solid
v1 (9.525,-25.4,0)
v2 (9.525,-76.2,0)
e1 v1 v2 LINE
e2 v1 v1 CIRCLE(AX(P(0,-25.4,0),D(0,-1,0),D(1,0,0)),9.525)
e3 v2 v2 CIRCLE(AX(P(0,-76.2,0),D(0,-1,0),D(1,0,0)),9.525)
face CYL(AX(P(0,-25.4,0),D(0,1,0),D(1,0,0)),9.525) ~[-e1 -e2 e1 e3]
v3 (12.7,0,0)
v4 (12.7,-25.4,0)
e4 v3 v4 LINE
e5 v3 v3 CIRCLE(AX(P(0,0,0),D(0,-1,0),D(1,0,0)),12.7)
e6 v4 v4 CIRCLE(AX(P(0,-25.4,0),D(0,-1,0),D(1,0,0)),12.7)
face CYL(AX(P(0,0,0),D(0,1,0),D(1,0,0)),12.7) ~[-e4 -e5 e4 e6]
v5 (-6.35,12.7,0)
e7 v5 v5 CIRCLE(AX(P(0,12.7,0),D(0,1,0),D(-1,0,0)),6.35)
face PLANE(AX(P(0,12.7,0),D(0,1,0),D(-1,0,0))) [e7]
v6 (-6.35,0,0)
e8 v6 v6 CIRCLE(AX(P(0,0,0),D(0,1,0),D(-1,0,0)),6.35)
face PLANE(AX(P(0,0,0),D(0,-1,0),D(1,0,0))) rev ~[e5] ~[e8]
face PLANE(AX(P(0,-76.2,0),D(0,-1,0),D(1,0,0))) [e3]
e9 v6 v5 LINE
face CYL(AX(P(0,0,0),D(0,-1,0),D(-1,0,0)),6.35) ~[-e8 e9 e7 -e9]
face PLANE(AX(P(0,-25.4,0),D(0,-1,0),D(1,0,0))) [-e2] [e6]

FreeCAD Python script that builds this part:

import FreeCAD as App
import Part
import Sketcher
Q = App.Units.Quantity

doc = App.newDocument("Part")
body = doc.addObject("PartDesign::Body", "Body")

sketch1 = body.newObject("Sketcher::SketchObject", "Sketch")
sketch1.AttachmentSupport = (doc.getObject("XZ_Plane"), [""])
sketch1.MapMode = "FlatFace"
sketch1.addGeometry(Part.Circle(App.Vector(0, 0, 0), App.Vector(0, 0, 1), 13), False)
sketch1.addConstraint(Sketcher.Constraint("Coincident", 0, 3, -1, 1))
sketch1.addConstraint(Sketcher.Constraint("Diameter", 0, Q("1 in")))
pad1 = body.newObject("PartDesign::Pad", "Pad")
pad1.Profile = sketch1
pad1.Length = Q("1 in")

sketch2 = body.newObject("Sketcher::SketchObject", "Sketch001")
sketch2.AttachmentSupport = (doc.getObject("XZ_Plane"), [""])
sketch2.MapMode = "FlatFace"
sketch2.addGeometry(Part.Circle(App.Vector(0, 0, 0), App.Vector(0, 0, 1), 6), False)
sketch2.addConstraint(Sketcher.Constraint("Coincident", 0, 3, -1, 1))
sketch2.addConstraint(Sketcher.Constraint("Diameter", 0, Q("0.5 in")))
pad2 = body.newObject("PartDesign::Pad", "Pad001")
pad2.Profile = sketch2
pad2.Length = Q("0.5 in")
pad2.Reversed = True

sketch3 = body.newObject("Sketcher::SketchObject", "Sketch002")
sketch3.AttachmentSupport = (doc.getObject("XZ_Plane"), [""])
sketch3.MapMode = "FlatFace"
sketch3.AttachmentOffset = App.Placement(App.Vector(0, 0, 1 * 25.4), App.Rotation())
sketch3.addGeometry(Part.Circle(App.Vector(0, 0, 0), App.Vector(0, 0, 1), 10), False)
sketch3.addConstraint(Sketcher.Constraint("Coincident", 0, 3, -1, 1))
sketch3.addConstraint(Sketcher.Constraint("Diameter", 0, Q("0.75 in")))
pad3 = body.newObject("PartDesign::Pad", "Pad002")
pad3.Profile = sketch3
pad3.Length = Q("2 in")

doc.recompute()
